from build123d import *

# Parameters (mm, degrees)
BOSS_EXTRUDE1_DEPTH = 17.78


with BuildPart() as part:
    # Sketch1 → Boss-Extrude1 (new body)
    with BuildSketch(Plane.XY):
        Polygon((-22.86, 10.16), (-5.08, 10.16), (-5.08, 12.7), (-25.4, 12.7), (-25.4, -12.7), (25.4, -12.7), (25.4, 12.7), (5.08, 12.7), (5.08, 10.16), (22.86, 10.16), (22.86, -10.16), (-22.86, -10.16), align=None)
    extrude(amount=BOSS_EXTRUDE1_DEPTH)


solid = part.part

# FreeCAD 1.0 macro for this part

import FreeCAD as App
import Part
import Sketcher

V = App.Vector
Q = App.Units.Quantity

doc = App.newDocument("Part")
body = doc.addObject("PartDesign::Body", "Body")

sketch1 = body.newObject("Sketcher::SketchObject", "Sketch")
sketch1.AttachmentSupport = (doc.getObject("XY_Plane"), [""])
sketch1.MapMode = "FlatFace"
sketch1.addGeometry(Part.LineSegment(V(-22.86, 10.16, 0), V(-5.08, 10.16, 0)), False)
sketch1.addGeometry(Part.LineSegment(V(-5.08, 10.16, 0), V(-5.08, 12.7, 0)), False)
sketch1.addGeometry(Part.LineSegment(V(-5.08, 12.7, 0), V(-25.4, 12.7, 0)), False)
sketch1.addGeometry(Part.LineSegment(V(-25.4, 12.7, 0), V(-25.4, -12.7, 0)), False)
sketch1.addGeometry(Part.LineSegment(V(-25.4, -12.7, 0), V(25.4, -12.7, 0)), False)
sketch1.addGeometry(Part.LineSegment(V(25.4, -12.7, 0), V(25.4, 12.7, 0)), False)
sketch1.addGeometry(Part.LineSegment(V(25.4, 12.7, 0), V(5.08, 12.7, 0)), False)
sketch1.addGeometry(Part.LineSegment(V(5.08, 12.7, 0), V(5.08, 10.16, 0)), False)
sketch1.addGeometry(Part.LineSegment(V(5.08, 10.16, 0), V(22.86, 10.16, 0)), False)
sketch1.addGeometry(Part.LineSegment(V(22.86, 10.16, 0), V(22.86, -10.16, 0)), False)
sketch1.addGeometry(Part.LineSegment(V(22.86, -10.16, 0), V(-22.86, -10.16, 0)), False)
sketch1.addGeometry(Part.LineSegment(V(-22.86, -10.16, 0), V(-22.86, 10.16, 0)), False)
sketch1.addConstraint(Sketcher.Constraint("Coincident", 0, 2, 1, 1))
sketch1.addConstraint(Sketcher.Constraint("Coincident", 1, 2, 2, 1))
sketch1.addConstraint(Sketcher.Constraint("Coincident", 2, 2, 3, 1))
sketch1.addConstraint(Sketcher.Constraint("Coincident", 3, 2, 4, 1))
sketch1.addConstraint(Sketcher.Constraint("Coincident", 4, 2, 5, 1))
sketch1.addConstraint(Sketcher.Constraint("Coincident", 5, 2, 6, 1))
sketch1.addConstraint(Sketcher.Constraint("Coincident", 6, 2, 7, 1))
sketch1.addConstraint(Sketcher.Constraint("Coincident", 7, 2, 8, 1))
sketch1.addConstraint(Sketcher.Constraint("Coincident", 8, 2, 9, 1))
sketch1.addConstraint(Sketcher.Constraint("Coincident", 9, 2, 10, 1))
sketch1.addConstraint(Sketcher.Constraint("Coincident", 10, 2, 11, 1))
sketch1.addConstraint(Sketcher.Constraint("Coincident", 11, 2, 0, 1))
sketch1.addConstraint(Sketcher.Constraint("Horizontal", 0))
sketch1.addConstraint(Sketcher.Constraint("Vertical", 1))
sketch1.addConstraint(Sketcher.Constraint("Horizontal", 2))
sketch1.addConstraint(Sketcher.Constraint("Vertical", 3))
sketch1.addConstraint(Sketcher.Constraint("Horizontal", 4))
sketch1.addConstraint(Sketcher.Constraint("Vertical", 5))
sketch1.addConstraint(Sketcher.Constraint("Horizontal", 6))
sketch1.addConstraint(Sketcher.Constraint("Vertical", 7))
sketch1.addConstraint(Sketcher.Constraint("Horizontal", 8))
sketch1.addConstraint(Sketcher.Constraint("Vertical", 9))
sketch1.addConstraint(Sketcher.Constraint("Horizontal", 10))
sketch1.addConstraint(Sketcher.Constraint("Vertical", 11))
sketch1.addConstraint(Sketcher.Constraint("Symmetric", 2, 2, 4, 2, -1, 1))
sketch1.addConstraint(Sketcher.Constraint("Symmetric", 8, 2, 10, 2, -1, 1))
sketch1.addConstraint(Sketcher.Constraint("Symmetric", 1, 2, 6, 2, -2))
sketch1.addConstraint(Sketcher.Constraint("Horizontal", 0, 2, 7, 2))
sketch1.addConstraint(Sketcher.Constraint("Equal", 6, 9))
sketch1.addConstraint(Sketcher.Constraint("DistanceX", 4, 1, 4, 2, Q("2 in")))
sketch1.addConstraint(Sketcher.Constraint("DistanceY", 3, 2, 3, 1, Q("1 in")))
sketch1.addConstraint(Sketcher.Constraint("DistanceX", 0, 1, 0, 2, Q("0.7 in")))
sketch1.addConstraint(Sketcher.Constraint("DistanceX", 2, 2, 2, 1, Q("0.8 in")))
pad1 = body.newObject("PartDesign::Pad", "Pad")
pad1.Profile = sketch1
pad1.Length = Q("0.7 in")

doc.recompute()
